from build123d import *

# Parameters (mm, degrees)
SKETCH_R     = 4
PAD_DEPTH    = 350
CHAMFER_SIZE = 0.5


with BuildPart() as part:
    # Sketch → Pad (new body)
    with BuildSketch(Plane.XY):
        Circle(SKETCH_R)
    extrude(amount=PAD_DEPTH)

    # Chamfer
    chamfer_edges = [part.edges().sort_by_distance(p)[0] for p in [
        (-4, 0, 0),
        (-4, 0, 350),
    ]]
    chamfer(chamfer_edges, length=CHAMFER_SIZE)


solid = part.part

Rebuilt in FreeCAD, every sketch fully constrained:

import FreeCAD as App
import Part
import Sketcher
from FreeCAD import Vector
Q = App.Units.Quantity


def edges_at(feature, points):
    """Names of the edges that pass closest to the given points."""
    edges = feature.Shape.Edges
    near = lambda p: min(range(len(edges)), key=lambda i: edges[i].distToShape(Part.Vertex(*p))[0])
    return sorted({f"Edge{near(p) + 1}" for p in points})

doc = App.newDocument("Part")
params = doc.addObject("Spreadsheet::Sheet", "Params")
for row, (alias, value) in enumerate([
    ("sketch1_diameter", "8 mm"),
    ("pad1_length", "350 mm"),
    ("chamfer_size", "0.5 mm"),
], start=1):
    params.set(f"A{row}", alias)
    params.set(f"B{row}", "=" + value)
    params.setAlias(f"B{row}", alias)

body = doc.addObject("PartDesign::Body", "Body")

# Sketch on XY plane
sketch1 = body.newObject("Sketcher::SketchObject", "Sketch")
sketch1.AttachmentSupport = (doc.getObject("XY_Plane"), [""])
sketch1.MapMode = "FlatFace"
sketch1.addGeometry(Part.Circle(Vector(0, 0, 0), Vector(0, 0, 1), 4), False)
sketch1.addConstraint([
    Sketcher.Constraint("Coincident", 0, 3, -1, 1),
    Sketcher.Constraint("Diameter", 0, Q("8 mm")),
])
sketch1.setExpression("Constraints[1]", "Params.sketch1_diameter")
pad1 = body.newObject("PartDesign::Pad", "Pad")
pad1.Profile = sketch1
pad1.setExpression("Length", "Params.pad1_length")
doc.recompute()

chamfer = body.newObject("PartDesign::Chamfer", "Chamfer")
chamfer.Base = (pad1, edges_at(pad1, [(-4, 0, 0), (-4, 0, 350)]))
chamfer.setExpression("Size", "Params.chamfer_size")

doc.recompute()
